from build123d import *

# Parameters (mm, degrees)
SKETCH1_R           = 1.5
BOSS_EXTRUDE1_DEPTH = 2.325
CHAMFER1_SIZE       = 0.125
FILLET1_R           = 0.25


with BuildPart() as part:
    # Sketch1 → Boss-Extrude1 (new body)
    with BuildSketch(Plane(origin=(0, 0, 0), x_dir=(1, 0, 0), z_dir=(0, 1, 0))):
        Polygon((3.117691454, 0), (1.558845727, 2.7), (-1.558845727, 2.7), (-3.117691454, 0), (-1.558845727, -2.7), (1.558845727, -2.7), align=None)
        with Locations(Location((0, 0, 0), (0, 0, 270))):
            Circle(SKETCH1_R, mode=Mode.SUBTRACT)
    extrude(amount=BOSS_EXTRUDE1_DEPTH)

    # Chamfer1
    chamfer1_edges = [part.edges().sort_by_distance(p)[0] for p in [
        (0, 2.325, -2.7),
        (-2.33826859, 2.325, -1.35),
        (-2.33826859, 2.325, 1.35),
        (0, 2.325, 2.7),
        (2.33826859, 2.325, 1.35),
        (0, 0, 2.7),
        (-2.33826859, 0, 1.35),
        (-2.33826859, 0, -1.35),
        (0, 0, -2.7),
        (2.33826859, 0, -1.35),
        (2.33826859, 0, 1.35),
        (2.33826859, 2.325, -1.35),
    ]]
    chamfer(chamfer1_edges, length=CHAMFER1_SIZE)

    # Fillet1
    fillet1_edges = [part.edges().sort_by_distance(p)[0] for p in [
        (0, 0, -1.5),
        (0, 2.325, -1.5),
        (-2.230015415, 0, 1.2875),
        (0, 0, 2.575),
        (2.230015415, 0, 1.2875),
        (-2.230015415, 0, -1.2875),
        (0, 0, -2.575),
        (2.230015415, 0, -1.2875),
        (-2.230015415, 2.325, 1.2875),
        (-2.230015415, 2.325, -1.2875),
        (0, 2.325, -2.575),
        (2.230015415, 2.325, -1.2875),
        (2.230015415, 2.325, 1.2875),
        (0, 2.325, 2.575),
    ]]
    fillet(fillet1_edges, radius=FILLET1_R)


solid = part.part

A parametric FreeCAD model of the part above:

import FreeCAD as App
import Part
import Sketcher

V = App.Vector
Q = App.Units.Quantity


def edges_at(feature, points):
    """Names of the edges that pass closest to the given points."""
    edges = feature.Shape.Edges
    near = lambda p: min(range(len(edges)), key=lambda i: edges[i].distToShape(Part.Vertex(*p))[0])
    return sorted({f"Edge{near(p) + 1}" for p in points})


def add_polygon(sketch, points):
    """Adds a closed chain of lines whose ends are joined by coincident constraints."""
    first, n = sketch.GeometryCount, len(points)
    for a, b in zip(points, points[1:] + points[:1]):
        sketch.addGeometry(Part.LineSegment(App.Vector(*a, 0), App.Vector(*b, 0)), False)
    for i in range(n):
        sketch.addConstraint(Sketcher.Constraint("Coincident", first + i, 2, first + (i + 1) % n, 1))

doc = App.newDocument("Part")
body = doc.addObject("PartDesign::Body", "Body")

sketch1 = body.newObject("Sketcher::SketchObject", "Sketch")
sketch1.AttachmentSupport = (doc.getObject("XZ_Plane"), [""])
sketch1.MapMode = "FlatFace"
add_polygon(sketch1, [(3.117691, 0), (1.558846, -2.7), (-1.558846, -2.7), (-3.117691, 0), (-1.558846, 2.7), (1.558846, 2.7)])
sketch1.addGeometry(Part.Circle(V(0, 0, 0), V(0, 0, 1), 1.5), False)
sketch1.addConstraint([
    Sketcher.Constraint("Horizontal", 1),
    Sketcher.Constraint("Horizontal", 4),
    Sketcher.Constraint("Coincident", 6, 3, -1, 1),
    Sketcher.Constraint("Symmetric", 0, 2, 3, 2, -1, 1),
    Sketcher.Constraint("Symmetric", 2, 2, 5, 2, -1, 1),
    Sketcher.Constraint("PointOnObject", 2, 2, -1),
    Sketcher.Constraint("Parallel", 2, 5),
    Sketcher.Constraint("Vertical", 1, 2, 3, 2),
    Sketcher.Constraint("Diameter", 6, Q("3 mm")),
    Sketcher.Constraint("Angle", 0, Q("-120 deg")),
    Sketcher.Constraint("DistanceY", 0, 2, -1, 1, Q("2.7 mm")),
    Sketcher.Constraint("DistanceX", 1, 2, 1, 1, Q("3.117691 mm")),
])
pad1 = body.newObject("PartDesign::Pad", "Pad")
pad1.Profile = sketch1
pad1.Length = 2.325
pad1.Reversed = True
doc.recompute()

chamfer = body.newObject("PartDesign::Chamfer", "Chamfer")
chamfer.Base = (pad1, edges_at(pad1, [
    (0, 2.325, -2.7),
    (-2.338, 2.325, -1.35),
    (-2.338, 2.325, 1.35),
    (0, 2.325, 2.7),
    (2.338, 2.325, 1.35),
    (0, 0, 2.7),
    (-2.338, 0, 1.35),
    (-2.338, 0, -1.35),
    (0, 0, -2.7),
    (2.338, 0, -1.35),
    (2.338, 0, 1.35),
    (2.338, 2.325, -1.35),
]))
chamfer.Size = 0.125
doc.recompute()

fillet = body.newObject("PartDesign::Fillet", "Fillet")
fillet.Base = (chamfer, edges_at(chamfer, [
    (0, 0, -1.5),
    (0, 2.325, -1.5),
    (-2.23, 0, 1.288),
    (0, 0, 2.575),
    (2.23, 0, 1.288),
    (-2.23, 0, -1.288),
    (0, 0, -2.575),
    (2.23, 0, -1.288),
    (-2.23, 2.325, 1.288),
    (-2.23, 2.325, -1.288),
    (0, 2.325, -2.575),
    (2.23, 2.325, -1.288),
    (2.23, 2.325, 1.288),
    (0, 2.325, 2.575),
]))
fillet.Radius = 0.25

doc.recompute()
